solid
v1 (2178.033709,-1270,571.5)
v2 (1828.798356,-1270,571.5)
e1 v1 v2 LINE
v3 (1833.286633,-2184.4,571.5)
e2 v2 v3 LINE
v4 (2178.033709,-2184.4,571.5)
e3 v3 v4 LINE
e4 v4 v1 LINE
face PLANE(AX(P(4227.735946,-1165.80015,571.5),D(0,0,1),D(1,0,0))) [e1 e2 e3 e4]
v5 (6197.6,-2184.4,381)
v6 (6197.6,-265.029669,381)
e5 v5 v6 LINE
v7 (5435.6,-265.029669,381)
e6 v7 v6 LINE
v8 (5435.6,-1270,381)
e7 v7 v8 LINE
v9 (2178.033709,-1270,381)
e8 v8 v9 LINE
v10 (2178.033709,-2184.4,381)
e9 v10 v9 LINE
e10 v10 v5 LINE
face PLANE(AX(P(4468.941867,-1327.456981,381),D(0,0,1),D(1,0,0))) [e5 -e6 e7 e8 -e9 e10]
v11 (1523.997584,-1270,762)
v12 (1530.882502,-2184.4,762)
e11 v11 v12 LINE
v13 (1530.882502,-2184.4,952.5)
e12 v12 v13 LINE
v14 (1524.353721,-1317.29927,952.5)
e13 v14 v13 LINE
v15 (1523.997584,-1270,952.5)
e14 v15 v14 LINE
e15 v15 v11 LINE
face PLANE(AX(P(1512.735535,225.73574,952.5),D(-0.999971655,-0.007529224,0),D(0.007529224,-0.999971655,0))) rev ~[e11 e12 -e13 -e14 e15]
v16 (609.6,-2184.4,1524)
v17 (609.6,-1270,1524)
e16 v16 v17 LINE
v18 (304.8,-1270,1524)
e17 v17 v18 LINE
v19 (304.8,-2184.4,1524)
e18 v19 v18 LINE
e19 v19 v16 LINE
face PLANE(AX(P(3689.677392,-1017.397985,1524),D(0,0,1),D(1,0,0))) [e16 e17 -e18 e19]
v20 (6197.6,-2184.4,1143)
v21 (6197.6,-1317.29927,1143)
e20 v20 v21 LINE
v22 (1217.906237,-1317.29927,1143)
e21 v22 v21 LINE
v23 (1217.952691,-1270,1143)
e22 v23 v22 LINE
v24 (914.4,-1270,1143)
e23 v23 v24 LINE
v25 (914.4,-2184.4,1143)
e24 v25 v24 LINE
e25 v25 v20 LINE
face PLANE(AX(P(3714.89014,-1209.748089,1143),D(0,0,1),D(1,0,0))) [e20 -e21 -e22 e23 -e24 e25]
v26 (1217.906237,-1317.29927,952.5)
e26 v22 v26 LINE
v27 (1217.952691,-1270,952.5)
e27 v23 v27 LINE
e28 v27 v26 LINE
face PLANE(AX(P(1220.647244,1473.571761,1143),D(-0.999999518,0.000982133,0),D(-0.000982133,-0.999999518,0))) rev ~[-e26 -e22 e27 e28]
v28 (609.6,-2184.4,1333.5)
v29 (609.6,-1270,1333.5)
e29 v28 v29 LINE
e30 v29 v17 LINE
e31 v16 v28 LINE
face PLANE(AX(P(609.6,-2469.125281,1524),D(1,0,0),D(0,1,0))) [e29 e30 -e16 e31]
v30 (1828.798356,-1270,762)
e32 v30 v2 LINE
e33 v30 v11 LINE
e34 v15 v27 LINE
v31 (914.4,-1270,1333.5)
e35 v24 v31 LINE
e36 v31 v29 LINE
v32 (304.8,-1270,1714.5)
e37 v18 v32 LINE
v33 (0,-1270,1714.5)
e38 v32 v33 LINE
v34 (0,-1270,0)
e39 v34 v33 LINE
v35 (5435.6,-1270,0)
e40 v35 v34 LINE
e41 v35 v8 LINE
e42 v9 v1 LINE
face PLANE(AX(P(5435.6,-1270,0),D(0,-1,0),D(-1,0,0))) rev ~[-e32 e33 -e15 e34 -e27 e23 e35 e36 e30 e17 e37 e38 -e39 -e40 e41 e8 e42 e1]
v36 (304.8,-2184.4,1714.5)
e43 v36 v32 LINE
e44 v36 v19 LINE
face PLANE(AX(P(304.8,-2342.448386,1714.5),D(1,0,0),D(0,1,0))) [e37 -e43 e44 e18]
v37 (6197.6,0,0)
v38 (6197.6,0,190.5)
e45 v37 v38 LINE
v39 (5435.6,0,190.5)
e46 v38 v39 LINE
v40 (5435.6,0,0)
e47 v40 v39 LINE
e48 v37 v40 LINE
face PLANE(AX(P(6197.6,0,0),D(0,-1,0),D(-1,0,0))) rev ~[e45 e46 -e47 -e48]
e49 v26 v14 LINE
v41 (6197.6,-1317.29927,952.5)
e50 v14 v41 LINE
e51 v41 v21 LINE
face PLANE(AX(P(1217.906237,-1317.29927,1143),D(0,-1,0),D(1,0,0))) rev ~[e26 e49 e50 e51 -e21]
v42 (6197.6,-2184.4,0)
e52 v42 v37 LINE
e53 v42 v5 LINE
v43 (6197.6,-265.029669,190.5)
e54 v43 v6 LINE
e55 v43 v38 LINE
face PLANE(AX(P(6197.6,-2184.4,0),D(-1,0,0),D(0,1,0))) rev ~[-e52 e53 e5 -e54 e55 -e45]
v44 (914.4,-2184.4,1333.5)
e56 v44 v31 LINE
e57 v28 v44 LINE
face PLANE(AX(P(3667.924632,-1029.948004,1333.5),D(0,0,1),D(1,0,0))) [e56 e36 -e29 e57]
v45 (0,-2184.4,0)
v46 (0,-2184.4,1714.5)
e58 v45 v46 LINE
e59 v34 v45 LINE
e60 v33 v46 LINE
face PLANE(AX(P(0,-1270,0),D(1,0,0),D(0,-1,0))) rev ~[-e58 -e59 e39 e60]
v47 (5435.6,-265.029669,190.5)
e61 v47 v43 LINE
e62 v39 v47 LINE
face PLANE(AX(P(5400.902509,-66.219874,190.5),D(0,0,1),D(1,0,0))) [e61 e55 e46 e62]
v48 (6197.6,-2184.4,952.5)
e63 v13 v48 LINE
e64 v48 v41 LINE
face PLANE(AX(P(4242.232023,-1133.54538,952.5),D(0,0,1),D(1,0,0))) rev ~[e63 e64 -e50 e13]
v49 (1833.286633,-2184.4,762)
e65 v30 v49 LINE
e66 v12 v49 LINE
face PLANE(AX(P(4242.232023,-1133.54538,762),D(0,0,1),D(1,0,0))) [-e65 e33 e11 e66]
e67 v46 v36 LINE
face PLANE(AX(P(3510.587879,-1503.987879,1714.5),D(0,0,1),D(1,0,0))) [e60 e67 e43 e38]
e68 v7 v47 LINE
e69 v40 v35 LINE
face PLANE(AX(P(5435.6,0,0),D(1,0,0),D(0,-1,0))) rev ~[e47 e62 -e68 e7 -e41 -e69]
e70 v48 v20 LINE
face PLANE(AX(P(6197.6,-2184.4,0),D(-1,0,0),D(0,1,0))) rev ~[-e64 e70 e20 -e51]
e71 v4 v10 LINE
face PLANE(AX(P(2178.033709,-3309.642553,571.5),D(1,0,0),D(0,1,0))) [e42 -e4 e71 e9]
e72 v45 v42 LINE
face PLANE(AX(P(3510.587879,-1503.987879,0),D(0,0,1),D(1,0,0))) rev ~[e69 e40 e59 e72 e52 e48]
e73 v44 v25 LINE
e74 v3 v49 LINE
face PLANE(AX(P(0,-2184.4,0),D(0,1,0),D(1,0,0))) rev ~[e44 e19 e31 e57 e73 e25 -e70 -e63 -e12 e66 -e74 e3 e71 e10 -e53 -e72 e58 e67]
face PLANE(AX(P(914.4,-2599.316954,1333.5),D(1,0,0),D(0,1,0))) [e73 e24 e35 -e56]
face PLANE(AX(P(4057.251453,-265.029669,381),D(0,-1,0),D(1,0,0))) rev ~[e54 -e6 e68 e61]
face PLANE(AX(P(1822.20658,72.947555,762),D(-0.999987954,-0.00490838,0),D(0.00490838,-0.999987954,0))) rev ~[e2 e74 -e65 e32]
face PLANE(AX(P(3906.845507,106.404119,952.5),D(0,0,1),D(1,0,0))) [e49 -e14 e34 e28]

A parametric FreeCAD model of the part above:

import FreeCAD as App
import Part
import Sketcher

V = App.Vector
Q = App.Units.Quantity

doc = App.newDocument("Part")
body = doc.addObject("PartDesign::Body", "Body")

# Sketch on XY plane
sketch1 = body.newObject("Sketcher::SketchObject", "Sketch")
sketch1.AttachmentSupport = (doc.getObject("XY_Plane"), [""])
sketch1.MapMode = "FlatFace"
sketch1.addGeometry(Part.LineSegment(V(5435.6, -1270, 0), V(0, -1270, 0)), False)
sketch1.addGeometry(Part.LineSegment(V(0, -1270, 0), V(0, -2184.4, 0)), False)
sketch1.addGeometry(Part.LineSegment(V(0, -2184.4, 0), V(6197.6, -2184.4, 0)), False)
sketch1.addGeometry(Part.LineSegment(V(6197.6, -2184.4, 0), V(6197.6, 0, 0)), False)
sketch1.addGeometry(Part.LineSegment(V(6197.6, 0, 0), V(5435.6, 0, 0)), False)
sketch1.addGeometry(Part.LineSegment(V(5435.6, 0, 0), V(5435.6, -1270, 0)), False)
sketch1.addConstraint(Sketcher.Constraint("Coincident", 0, 2, 1, 1))
sketch1.addConstraint(Sketcher.Constraint("Coincident", 1, 2, 2, 1))
sketch1.addConstraint(Sketcher.Constraint("Coincident", 2, 2, 3, 1))
sketch1.addConstraint(Sketcher.Constraint("Coincident", 3, 2, 4, 1))
sketch1.addConstraint(Sketcher.Constraint("Coincident", 4, 2, 5, 1))
sketch1.addConstraint(Sketcher.Constraint("Coincident", 5, 2, 0, 1))
sketch1.addConstraint(Sketcher.Constraint("Horizontal", 0))
sketch1.addConstraint(Sketcher.Constraint("Vertical", 1))
sketch1.addConstraint(Sketcher.Constraint("Horizontal", 2))
sketch1.addConstraint(Sketcher.Constraint("Vertical", 3))
sketch1.addConstraint(Sketcher.Constraint("Horizontal", 4))
sketch1.addConstraint(Sketcher.Constraint("Vertical", 5))
sketch1.addConstraint(Sketcher.Constraint("PointOnObject", 0, 2, -2))
sketch1.addConstraint(Sketcher.Constraint("PointOnObject", 3, 2, -1))
sketch1.addConstraint(Sketcher.Constraint("DistanceX", 0, 2, 0, 1, Q("214 in")))
sketch1.addConstraint(Sketcher.Constraint("DistanceX", 2, 1, 2, 2, Q("244 in")))
sketch1.addConstraint(Sketcher.Constraint("DistanceY", 1, 2, 1, 1, Q("36 in")))
sketch1.addConstraint(Sketcher.Constraint("DistanceY", 3, 1, 3, 2, Q("86 in")))
pad1 = body.newObject("PartDesign::Pad", "Pad")
pad1.Profile = sketch1
pad1.Length = Q("67.5 in")

# Sketch on XY plane
sketch2 = body.newObject("Sketcher::SketchObject", "Sketch001")
sketch2.AttachmentSupport = (doc.getObject("XY_Plane"), [""])
sketch2.MapMode = "FlatFace"
sketch2.AttachmentOffset = App.Placement(V(0, 0, 67.5 * 25.4), App.Rotation())
sketch2.addGeometry(Part.LineSegment(V(304.8, 307.652416, 0), V(304.8, -2342.448386, 0)), False)
sketch2.addGeometry(Part.LineSegment(V(304.8, -2342.448386, 0), V(7074.554784, -2342.448386, 0)), False)
sketch2.addGeometry(Part.LineSegment(V(7074.554784, -2342.448386, 0), V(7074.554784, 307.652416, 0)), False)
sketch2.addGeometry(Part.LineSegment(V(7074.554784, 307.652416, 0), V(304.8, 307.652416, 0)), False)
sketch2.addConstraint(Sketcher.Constraint("Coincident", 0, 2, 1, 1))
sketch2.addConstraint(Sketcher.Constraint("Coincident", 1, 2, 2, 1))
sketch2.addConstraint(Sketcher.Constraint("Coincident", 2, 2, 3, 1))
sketch2.addConstraint(Sketcher.Constraint("Coincident", 3, 2, 0, 1))
sketch2.addConstraint(Sketcher.Constraint("Vertical", 0))
sketch2.addConstraint(Sketcher.Constraint("Horizontal", 1))
sketch2.addConstraint(Sketcher.Constraint("Vertical", 2))
sketch2.addConstraint(Sketcher.Constraint("Horizontal", 3))
sketch2.addConstraint(Sketcher.Constraint("DistanceX", -1, 1, 0, 2, Q("12 in")))
sketch2.addConstraint(Sketcher.Constraint("DistanceY", 0, 2, 0, 1, 2650.100802))
sketch2.addConstraint(Sketcher.Constraint("DistanceY", -1, 1, 2, 2, Q("12.1122998 in")))
sketch2.addConstraint(Sketcher.Constraint("DistanceX", 1, 1, 1, 2, 6769.754784))
pocket1 = body.newObject("PartDesign::Pocket", "Pocket")
pocket1.Profile = sketch2
pocket1.Length = Q("7.5 in")

# Sketch on XY plane
sketch3 = body.newObject("Sketcher::SketchObject", "Sketch002")
sketch3.AttachmentSupport = (doc.getObject("XY_Plane"), [""])
sketch3.MapMode = "FlatFace"
sketch3.AttachmentOffset = App.Placement(V(0, 0, 60 * 25.4), App.Rotation())
sketch3.addGeometry(Part.LineSegment(V(609.6, 409.229273, 0), V(609.6, -2469.125281, 0)), False)
sketch3.addGeometry(Part.LineSegment(V(609.6, -2469.125281, 0), V(6726.249264, -2469.125281, 0)), False)
sketch3.addGeometry(Part.LineSegment(V(6726.249264, -2469.125281, 0), V(6726.249264, 409.229273, 0)), False)
sketch3.addGeometry(Part.LineSegment(V(6726.249264, 409.229273, 0), V(609.6, 409.229273, 0)), False)
sketch3.addConstraint(Sketcher.Constraint("Coincident", 0, 2, 1, 1))
sketch3.addConstraint(Sketcher.Constraint("Coincident", 1, 2, 2, 1))
sketch3.addConstraint(Sketcher.Constraint("Coincident", 2, 2, 3, 1))
sketch3.addConstraint(Sketcher.Constraint("Coincident", 3, 2, 0, 1))
sketch3.addConstraint(Sketcher.Constraint("Vertical", 0))
sketch3.addConstraint(Sketcher.Constraint("Horizontal", 1))
sketch3.addConstraint(Sketcher.Constraint("Vertical", 2))
sketch3.addConstraint(Sketcher.Constraint("Horizontal", 3))
sketch3.addConstraint(Sketcher.Constraint("DistanceX", -1, 1, 0, 2, Q("24 in")))
sketch3.addConstraint(Sketcher.Constraint("DistanceX", 1, 1, 1, 2, 6116.649264))
sketch3.addConstraint(Sketcher.Constraint("DistanceY", 0, 2, 0, 1, 2878.354555))
sketch3.addConstraint(Sketcher.Constraint("DistanceY", 0, 2, -1, 1, 2469.125281))
pocket2 = body.newObject("PartDesign::Pocket", "Pocket001")
pocket2.Profile = sketch3
pocket2.Length = Q("7.5 in")

# Sketch on XY plane
sketch4 = body.newObject("Sketcher::SketchObject", "Sketch003")
sketch4.AttachmentSupport = (doc.getObject("XY_Plane"), [""])
sketch4.MapMode = "FlatFace"
sketch4.AttachmentOffset = App.Placement(V(0, 0, 52.5 * 25.4), App.Rotation())
sketch4.addGeometry(Part.LineSegment(V(914.4, 179.820775, 0), V(914.4, -2599.316954, 0)), False)
sketch4.addGeometry(Part.LineSegment(V(914.4, -2599.316954, 0), V(6515.38028, -2599.316954, 0)), False)
sketch4.addGeometry(Part.LineSegment(V(6515.38028, -2599.316954, 0), V(6515.38028, 179.820775, 0)), False)
sketch4.addGeometry(Part.LineSegment(V(6515.38028, 179.820775, 0), V(914.4, 179.820775, 0)), False)
sketch4.addConstraint(Sketcher.Constraint("Coincident", 0, 2, 1, 1))
sketch4.addConstraint(Sketcher.Constraint("Coincident", 1, 2, 2, 1))
sketch4.addConstraint(Sketcher.Constraint("Coincident", 2, 2, 3, 1))
sketch4.addConstraint(Sketcher.Constraint("Coincident", 3, 2, 0, 1))
sketch4.addConstraint(Sketcher.Constraint("Vertical", 0))
sketch4.addConstraint(Sketcher.Constraint("Horizontal", 1))
sketch4.addConstraint(Sketcher.Constraint("Vertical", 2))
sketch4.addConstraint(Sketcher.Constraint("Horizontal", 3))
sketch4.addConstraint(Sketcher.Constraint("DistanceX", -1, 1, 0, 2, Q("36 in")))
sketch4.addConstraint(Sketcher.Constraint("DistanceX", 1, 1, 1, 2, 5600.98028))
sketch4.addConstraint(Sketcher.Constraint("DistanceY", 0, 2, 0, 1, 2779.137729))
sketch4.addConstraint(Sketcher.Constraint("DistanceY", 0, 2, -1, 1, 2599.316954))
pocket3 = body.newObject("PartDesign::Pocket", "Pocket002")
pocket3.Profile = sketch4
pocket3.Length = Q("7.5 in")

# Sketch on XY plane
sketch5 = body.newObject("Sketcher::SketchObject", "Sketch004")
sketch5.AttachmentSupport = (doc.getObject("XY_Plane"), [""])
sketch5.MapMode = "FlatFace"
sketch5.AttachmentOffset = App.Placement(V(0, 0, 45 * 25.4), App.Rotation())
sketch5.addGeometry(Part.LineSegment(V(6557.625086, 1586.404227, 0), V(1220.647244, 1473.571761, 0)), False)
sketch5.addGeometry(Part.LineSegment(V(1220.647244, 1473.571761, 0), V(1217.906237, -1317.29927, 0)), False)
sketch5.addGeometry(Part.LineSegment(V(1217.906237, -1317.29927, 0), V(6557.625086, -1317.29927, 0)), False)
sketch5.addGeometry(Part.LineSegment(V(6557.625086, -1317.29927, 0), V(6557.625086, 1586.404227, 0)), False)
sketch5.addConstraint(Sketcher.Constraint("Coincident", 0, 2, 1, 1))
sketch5.addConstraint(Sketcher.Constraint("Coincident", 1, 2, 2, 1))
sketch5.addConstraint(Sketcher.Constraint("Coincident", 2, 2, 3, 1))
sketch5.addConstraint(Sketcher.Constraint("Coincident", 3, 2, 0, 1))
sketch5.addConstraint(Sketcher.Constraint("Horizontal", 2))
sketch5.addConstraint(Sketcher.Constraint("Vertical", 3))
sketch5.addConstraint(Sketcher.Constraint("DistanceX", 2, 1, 2, 2, 5339.718849))
sketch5.addConstraint(Sketcher.Constraint("Distance", 0, 5338.17044))
sketch5.addConstraint(Sketcher.Constraint("DistanceY", 3, 1, 3, 2, 2903.703497))
sketch5.addConstraint(Sketcher.Constraint("DistanceY", -1, 1, 0, 2, 1473.571761))
sketch5.addConstraint(Sketcher.Constraint("DistanceY", 1, 2, -1, 1, 1317.29927))
sketch5.addConstraint(Sketcher.Constraint("DistanceX", -1, 1, 0, 2, 1220.647244))
pocket4 = body.newObject("PartDesign::Pocket", "Pocket003")
pocket4.Profile = sketch5
pocket4.Length = Q("7.5 in")

# Sketch on XY plane
sketch6 = body.newObject("Sketcher::SketchObject", "Sketch005")
sketch6.AttachmentSupport = (doc.getObject("XY_Plane"), [""])
sketch6.MapMode = "FlatFace"
sketch6.AttachmentOffset = App.Placement(V(0, 0, 37.5 * 25.4), App.Rotation())
sketch6.addGeometry(Part.LineSegment(V(6549.054911, 597.07729, 0), V(1512.735535, 225.73574, 0)), False)
sketch6.addGeometry(Part.LineSegment(V(1512.735535, 225.73574, 0), V(1533.949639, -2591.752768, 0)), False)
sketch6.addGeometry(Part.LineSegment(V(1533.949639, -2591.752768, 0), V(7090.906833, -2591.752768, 0)), False)
sketch6.addGeometry(Part.LineSegment(V(7090.906833, -2591.752768, 0), V(6549.054911, 597.07729, 0)), False)
sketch6.addConstraint(Sketcher.Constraint("Coincident", 0, 2, 1, 1))
sketch6.addConstraint(Sketcher.Constraint("Coincident", 1, 2, 2, 1))
sketch6.addConstraint(Sketcher.Constraint("Coincident", 2, 2, 3, 1))
sketch6.addConstraint(Sketcher.Constraint("Coincident", 3, 2, 0, 1))
sketch6.addConstraint(Sketcher.Constraint("Horizontal", 2))
sketch6.addConstraint(Sketcher.Constraint("DistanceX", 0, 2, 2, 2, 5578.171298))
sketch6.addConstraint(Sketcher.Constraint("DistanceX", 2, 1, 2, 2, 5556.957194))
sketch6.addConstraint(Sketcher.Constraint("DistanceY", -1, 1, 0, 2, 225.73574))
sketch6.addConstraint(Sketcher.Constraint("DistanceX", -1, 1, 1, 2, 1533.949639))
sketch6.addConstraint(Sketcher.Constraint("DistanceX", -1, 1, 3, 2, 6549.054911))
sketch6.addConstraint(Sketcher.Constraint("DistanceY", -1, 1, 3, 2, 597.07729))
sketch6.addConstraint(Sketcher.Constraint("Distance", 1, 2817.568372))
pocket5 = body.newObject("PartDesign::Pocket", "Pocket004")
pocket5.Profile = sketch6
pocket5.Length = Q("7.5 in")

# Sketch on XY plane
sketch7 = body.newObject("Sketcher::SketchObject", "Sketch006")
sketch7.AttachmentSupport = (doc.getObject("XY_Plane"), [""])
sketch7.MapMode = "FlatFace"
sketch7.AttachmentOffset = App.Placement(V(0, 0, 30 * 25.4), App.Rotation())
sketch7.addGeometry(Part.LineSegment(V(6558.934754, 203.396683, 0), V(1822.20658, 72.947555, 0)), False)
sketch7.addGeometry(Part.LineSegment(V(1822.20658, 72.947555, 0), V(1834.353823, -2401.819355, 0)), False)
sketch7.addGeometry(Part.LineSegment(V(1834.353823, -2401.819355, 0), V(6510.601342, -2558.526313, 0)), False)
sketch7.addGeometry(Part.LineSegment(V(6510.601342, -2558.526313, 0), V(6558.934754, 203.396683, 0)), False)
sketch7.addConstraint(Sketcher.Constraint("Coincident", 0, 2, 1, 1))
sketch7.addConstraint(Sketcher.Constraint("Coincident", 1, 2, 2, 1))
sketch7.addConstraint(Sketcher.Constraint("Coincident", 2, 2, 3, 1))
sketch7.addConstraint(Sketcher.Constraint("Coincident", 3, 2, 0, 1))
sketch7.addConstraint(Sketcher.Constraint("Distance", 1, 2474.796722))
sketch7.addConstraint(Sketcher.Constraint("Distance", 3, 2762.345879))
sketch7.addConstraint(Sketcher.Constraint("DistanceX", -1, 1, 0, 2, 1822.20658))
sketch7.addConstraint(Sketcher.Constraint("DistanceX", -1, 1, 2, 2, 6510.601342))
sketch7.addConstraint(Sketcher.Constraint("DistanceY", 1, 2, 0, 2, 2474.76691))
sketch7.addConstraint(Sketcher.Constraint("DistanceY", 2, 2, 0, 2, 2631.473868))
sketch7.addConstraint(Sketcher.Constraint("DistanceX", 2, 2, 3, 2, 48.333412))
sketch7.addConstraint(Sketcher.Constraint("DistanceY", -1, 1, 0, 2, 72.947555))
pocket6 = body.newObject("PartDesign::Pocket", "Pocket005")
pocket6.Profile = sketch7
pocket6.Length = Q("7.5 in")

# Sketch on XY plane
sketch8 = body.newObject("Sketcher::SketchObject", "Sketch007")
sketch8.AttachmentSupport = (doc.getObject("XY_Plane"), [""])
sketch8.MapMode = "FlatFace"
sketch8.AttachmentOffset = App.Placement(V(0, 0, 22.5 * 25.4), App.Rotation())
sketch8.addGeometry(Part.LineSegment(V(2178.033709, 654.728591, 0), V(2178.033709, -3309.642553, 0)), False)
sketch8.addGeometry(Part.LineSegment(V(2178.033709, -3309.642553, 0), V(6759.850024, -3309.642553, 0)), False)
sketch8.addGeometry(Part.LineSegment(V(6759.850024, -3309.642553, 0), V(6759.850024, 654.728591, 0)), False)
sketch8.addGeometry(Part.LineSegment(V(6759.850024, 654.728591, 0), V(2178.033709, 654.728591, 0)), False)
sketch8.addConstraint(Sketcher.Constraint("Coincident", 0, 2, 1, 1))
sketch8.addConstraint(Sketcher.Constraint("Coincident", 1, 2, 2, 1))
sketch8.addConstraint(Sketcher.Constraint("Coincident", 2, 2, 3, 1))
sketch8.addConstraint(Sketcher.Constraint("Coincident", 3, 2, 0, 1))
sketch8.addConstraint(Sketcher.Constraint("Vertical", 0))
sketch8.addConstraint(Sketcher.Constraint("Horizontal", 1))
sketch8.addConstraint(Sketcher.Constraint("Vertical", 2))
sketch8.addConstraint(Sketcher.Constraint("Horizontal", 3))
sketch8.addConstraint(Sketcher.Constraint("DistanceX", 1, 1, 1, 2, 4581.816315))
sketch8.addConstraint(Sketcher.Constraint("DistanceY", 0, 2, 0, 1, 3964.371144))
sketch8.addConstraint(Sketcher.Constraint("DistanceX", -1, 1, 0, 2, 2178.033709))
sketch8.addConstraint(Sketcher.Constraint("DistanceY", -1, 1, 2, 2, 654.728591))
pocket7 = body.newObject("PartDesign::Pocket", "Pocket006")
pocket7.Profile = sketch8
pocket7.Length = Q("7.5 in")

# Sketch on XY plane
sketch9 = body.newObject("Sketcher::SketchObject", "Sketch008")
sketch9.AttachmentSupport = (doc.getObject("XY_Plane"), [""])
sketch9.MapMode = "FlatFace"
sketch9.AttachmentOffset = App.Placement(V(0, 0, 15 * 25.4), App.Rotation())
sketch9.addGeometry(Part.LineSegment(V(4057.251453, 132.589921, 0), V(4057.251453, -265.029669, 0)), False)
sketch9.addGeometry(Part.LineSegment(V(4057.251453, -265.029669, 0), V(6744.553566, -265.029669, 0)), False)
sketch9.addGeometry(Part.LineSegment(V(6744.553566, -265.029669, 0), V(6744.553566, 132.589921, 0)), False)
sketch9.addGeometry(Part.LineSegment(V(6744.553566, 132.589921, 0), V(4057.251453, 132.589921, 0)), False)
sketch9.addConstraint(Sketcher.Constraint("Coincident", 0, 2, 1, 1))
sketch9.addConstraint(Sketcher.Constraint("Coincident", 1, 2, 2, 1))
sketch9.addConstraint(Sketcher.Constraint("Coincident", 2, 2, 3, 1))
sketch9.addConstraint(Sketcher.Constraint("Coincident", 3, 2, 0, 1))
sketch9.addConstraint(Sketcher.Constraint("Vertical", 0))
sketch9.addConstraint(Sketcher.Constraint("Horizontal", 1))
sketch9.addConstraint(Sketcher.Constraint("Vertical", 2))
sketch9.addConstraint(Sketcher.Constraint("Horizontal", 3))
sketch9.addConstraint(Sketcher.Constraint("DistanceY", 0, 2, 0, 1, 397.61959))
sketch9.addConstraint(Sketcher.Constraint("DistanceX", 1, 1, 1, 2, 2687.302113))
sketch9.addConstraint(Sketcher.Constraint("DistanceY", 0, 2, -1, 1, 265.029669))
sketch9.addConstraint(Sketcher.Constraint("DistanceX", -1, 1, 0, 2, 4057.251453))
pocket8 = body.newObject("PartDesign::Pocket", "Pocket007")
pocket8.Profile = sketch9
pocket8.Length = Q("7.5 in")

doc.recompute()
